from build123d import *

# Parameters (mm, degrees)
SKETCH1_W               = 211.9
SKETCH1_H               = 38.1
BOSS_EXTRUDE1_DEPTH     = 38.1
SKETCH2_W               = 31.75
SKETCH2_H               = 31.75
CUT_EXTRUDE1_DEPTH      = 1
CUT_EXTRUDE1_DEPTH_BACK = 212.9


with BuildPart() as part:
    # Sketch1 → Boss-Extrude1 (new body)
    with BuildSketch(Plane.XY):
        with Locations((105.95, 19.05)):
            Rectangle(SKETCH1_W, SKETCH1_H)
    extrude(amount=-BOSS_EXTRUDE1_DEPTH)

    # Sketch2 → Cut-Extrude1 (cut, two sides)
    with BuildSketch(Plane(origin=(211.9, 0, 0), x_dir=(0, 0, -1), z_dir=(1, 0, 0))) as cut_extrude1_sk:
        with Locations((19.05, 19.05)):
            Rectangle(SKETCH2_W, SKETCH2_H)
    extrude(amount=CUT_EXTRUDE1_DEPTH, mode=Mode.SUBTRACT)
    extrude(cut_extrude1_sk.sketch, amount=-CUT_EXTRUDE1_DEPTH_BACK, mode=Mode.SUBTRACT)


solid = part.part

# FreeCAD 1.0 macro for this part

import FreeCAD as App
import Part
import Sketcher
Q = App.Units.Quantity


def add_polygon(sketch, points):
    """Adds a closed chain of lines whose ends are joined by coincident constraints."""
    first, n = sketch.GeometryCount, len(points)
    for a, b in zip(points, points[1:] + points[:1]):
        sketch.addGeometry(Part.LineSegment(App.Vector(*a, 0), App.Vector(*b, 0)), False)
    for i in range(n):
        sketch.addConstraint(Sketcher.Constraint("Coincident", first + i, 2, first + (i + 1) % n, 1))

doc = App.newDocument("Part")
body = doc.addObject("PartDesign::Body", "Body")

# Sketch on XY plane
sketch1 = body.newObject("Sketcher::SketchObject", "Sketch")
sketch1.AttachmentSupport = (doc.getObject("XY_Plane"), [""])
sketch1.MapMode = "FlatFace"
add_polygon(sketch1, [(0, 38.1), (0, 0), (211.9, 0), (211.9, 38.1)])  # lines 0-3
sketch1.addConstraint([
    Sketcher.Constraint("Vertical", 0),
    Sketcher.Constraint("Horizontal", 1),
    Sketcher.Constraint("Vertical", 2),
    Sketcher.Constraint("Horizontal", 3),
    Sketcher.Constraint("Coincident", 0, 2, -1, 1),
    Sketcher.Constraint("DistanceX", 1, 1, 1, 2, Q("211.9 mm")),
    Sketcher.Constraint("DistanceY", 0, 2, 0, 1, Q("38.1 mm")),
])
pad1 = body.newObject("PartDesign::Pad", "Pad")
pad1.Profile = sketch1
pad1.Length = 38.1
pad1.Reversed = True

# Sketch on YZ plane
sketch2 = body.newObject("Sketcher::SketchObject", "Sketch001")
sketch2.AttachmentSupport = (doc.getObject("YZ_Plane"), [""])
sketch2.MapMode = "FlatFace"
sketch2.AttachmentOffset = App.Placement(App.Vector(0, 0, 211.9), App.Rotation())
add_polygon(sketch2, [(34.925, -3.175), (3.175, -3.175), (3.175, -34.925), (34.925, -34.925)])  # lines 0-3
sketch2.addConstraint([
    Sketcher.Constraint("Horizontal", 0),
    Sketcher.Constraint("Vertical", 1),
    Sketcher.Constraint("Horizontal", 2),
    Sketcher.Constraint("Vertical", 3),
    Sketcher.Constraint("Equal", 2, 1),
    Sketcher.Constraint("DistanceX", 0, 2, 0, 1, Q("31.75 mm")),
    Sketcher.Constraint("DistanceX", -1, 1, 0, 2, Q("3.175 mm")),
    Sketcher.Constraint("DistanceY", 0, 2, -1, 1, Q("3.175 mm")),
])
pocket1 = body.newObject("PartDesign::Pocket", "Pocket")
pocket1.Profile = sketch2
pocket1.Type = "ThroughAll"
pocket1.Midplane = True

doc.recompute()
